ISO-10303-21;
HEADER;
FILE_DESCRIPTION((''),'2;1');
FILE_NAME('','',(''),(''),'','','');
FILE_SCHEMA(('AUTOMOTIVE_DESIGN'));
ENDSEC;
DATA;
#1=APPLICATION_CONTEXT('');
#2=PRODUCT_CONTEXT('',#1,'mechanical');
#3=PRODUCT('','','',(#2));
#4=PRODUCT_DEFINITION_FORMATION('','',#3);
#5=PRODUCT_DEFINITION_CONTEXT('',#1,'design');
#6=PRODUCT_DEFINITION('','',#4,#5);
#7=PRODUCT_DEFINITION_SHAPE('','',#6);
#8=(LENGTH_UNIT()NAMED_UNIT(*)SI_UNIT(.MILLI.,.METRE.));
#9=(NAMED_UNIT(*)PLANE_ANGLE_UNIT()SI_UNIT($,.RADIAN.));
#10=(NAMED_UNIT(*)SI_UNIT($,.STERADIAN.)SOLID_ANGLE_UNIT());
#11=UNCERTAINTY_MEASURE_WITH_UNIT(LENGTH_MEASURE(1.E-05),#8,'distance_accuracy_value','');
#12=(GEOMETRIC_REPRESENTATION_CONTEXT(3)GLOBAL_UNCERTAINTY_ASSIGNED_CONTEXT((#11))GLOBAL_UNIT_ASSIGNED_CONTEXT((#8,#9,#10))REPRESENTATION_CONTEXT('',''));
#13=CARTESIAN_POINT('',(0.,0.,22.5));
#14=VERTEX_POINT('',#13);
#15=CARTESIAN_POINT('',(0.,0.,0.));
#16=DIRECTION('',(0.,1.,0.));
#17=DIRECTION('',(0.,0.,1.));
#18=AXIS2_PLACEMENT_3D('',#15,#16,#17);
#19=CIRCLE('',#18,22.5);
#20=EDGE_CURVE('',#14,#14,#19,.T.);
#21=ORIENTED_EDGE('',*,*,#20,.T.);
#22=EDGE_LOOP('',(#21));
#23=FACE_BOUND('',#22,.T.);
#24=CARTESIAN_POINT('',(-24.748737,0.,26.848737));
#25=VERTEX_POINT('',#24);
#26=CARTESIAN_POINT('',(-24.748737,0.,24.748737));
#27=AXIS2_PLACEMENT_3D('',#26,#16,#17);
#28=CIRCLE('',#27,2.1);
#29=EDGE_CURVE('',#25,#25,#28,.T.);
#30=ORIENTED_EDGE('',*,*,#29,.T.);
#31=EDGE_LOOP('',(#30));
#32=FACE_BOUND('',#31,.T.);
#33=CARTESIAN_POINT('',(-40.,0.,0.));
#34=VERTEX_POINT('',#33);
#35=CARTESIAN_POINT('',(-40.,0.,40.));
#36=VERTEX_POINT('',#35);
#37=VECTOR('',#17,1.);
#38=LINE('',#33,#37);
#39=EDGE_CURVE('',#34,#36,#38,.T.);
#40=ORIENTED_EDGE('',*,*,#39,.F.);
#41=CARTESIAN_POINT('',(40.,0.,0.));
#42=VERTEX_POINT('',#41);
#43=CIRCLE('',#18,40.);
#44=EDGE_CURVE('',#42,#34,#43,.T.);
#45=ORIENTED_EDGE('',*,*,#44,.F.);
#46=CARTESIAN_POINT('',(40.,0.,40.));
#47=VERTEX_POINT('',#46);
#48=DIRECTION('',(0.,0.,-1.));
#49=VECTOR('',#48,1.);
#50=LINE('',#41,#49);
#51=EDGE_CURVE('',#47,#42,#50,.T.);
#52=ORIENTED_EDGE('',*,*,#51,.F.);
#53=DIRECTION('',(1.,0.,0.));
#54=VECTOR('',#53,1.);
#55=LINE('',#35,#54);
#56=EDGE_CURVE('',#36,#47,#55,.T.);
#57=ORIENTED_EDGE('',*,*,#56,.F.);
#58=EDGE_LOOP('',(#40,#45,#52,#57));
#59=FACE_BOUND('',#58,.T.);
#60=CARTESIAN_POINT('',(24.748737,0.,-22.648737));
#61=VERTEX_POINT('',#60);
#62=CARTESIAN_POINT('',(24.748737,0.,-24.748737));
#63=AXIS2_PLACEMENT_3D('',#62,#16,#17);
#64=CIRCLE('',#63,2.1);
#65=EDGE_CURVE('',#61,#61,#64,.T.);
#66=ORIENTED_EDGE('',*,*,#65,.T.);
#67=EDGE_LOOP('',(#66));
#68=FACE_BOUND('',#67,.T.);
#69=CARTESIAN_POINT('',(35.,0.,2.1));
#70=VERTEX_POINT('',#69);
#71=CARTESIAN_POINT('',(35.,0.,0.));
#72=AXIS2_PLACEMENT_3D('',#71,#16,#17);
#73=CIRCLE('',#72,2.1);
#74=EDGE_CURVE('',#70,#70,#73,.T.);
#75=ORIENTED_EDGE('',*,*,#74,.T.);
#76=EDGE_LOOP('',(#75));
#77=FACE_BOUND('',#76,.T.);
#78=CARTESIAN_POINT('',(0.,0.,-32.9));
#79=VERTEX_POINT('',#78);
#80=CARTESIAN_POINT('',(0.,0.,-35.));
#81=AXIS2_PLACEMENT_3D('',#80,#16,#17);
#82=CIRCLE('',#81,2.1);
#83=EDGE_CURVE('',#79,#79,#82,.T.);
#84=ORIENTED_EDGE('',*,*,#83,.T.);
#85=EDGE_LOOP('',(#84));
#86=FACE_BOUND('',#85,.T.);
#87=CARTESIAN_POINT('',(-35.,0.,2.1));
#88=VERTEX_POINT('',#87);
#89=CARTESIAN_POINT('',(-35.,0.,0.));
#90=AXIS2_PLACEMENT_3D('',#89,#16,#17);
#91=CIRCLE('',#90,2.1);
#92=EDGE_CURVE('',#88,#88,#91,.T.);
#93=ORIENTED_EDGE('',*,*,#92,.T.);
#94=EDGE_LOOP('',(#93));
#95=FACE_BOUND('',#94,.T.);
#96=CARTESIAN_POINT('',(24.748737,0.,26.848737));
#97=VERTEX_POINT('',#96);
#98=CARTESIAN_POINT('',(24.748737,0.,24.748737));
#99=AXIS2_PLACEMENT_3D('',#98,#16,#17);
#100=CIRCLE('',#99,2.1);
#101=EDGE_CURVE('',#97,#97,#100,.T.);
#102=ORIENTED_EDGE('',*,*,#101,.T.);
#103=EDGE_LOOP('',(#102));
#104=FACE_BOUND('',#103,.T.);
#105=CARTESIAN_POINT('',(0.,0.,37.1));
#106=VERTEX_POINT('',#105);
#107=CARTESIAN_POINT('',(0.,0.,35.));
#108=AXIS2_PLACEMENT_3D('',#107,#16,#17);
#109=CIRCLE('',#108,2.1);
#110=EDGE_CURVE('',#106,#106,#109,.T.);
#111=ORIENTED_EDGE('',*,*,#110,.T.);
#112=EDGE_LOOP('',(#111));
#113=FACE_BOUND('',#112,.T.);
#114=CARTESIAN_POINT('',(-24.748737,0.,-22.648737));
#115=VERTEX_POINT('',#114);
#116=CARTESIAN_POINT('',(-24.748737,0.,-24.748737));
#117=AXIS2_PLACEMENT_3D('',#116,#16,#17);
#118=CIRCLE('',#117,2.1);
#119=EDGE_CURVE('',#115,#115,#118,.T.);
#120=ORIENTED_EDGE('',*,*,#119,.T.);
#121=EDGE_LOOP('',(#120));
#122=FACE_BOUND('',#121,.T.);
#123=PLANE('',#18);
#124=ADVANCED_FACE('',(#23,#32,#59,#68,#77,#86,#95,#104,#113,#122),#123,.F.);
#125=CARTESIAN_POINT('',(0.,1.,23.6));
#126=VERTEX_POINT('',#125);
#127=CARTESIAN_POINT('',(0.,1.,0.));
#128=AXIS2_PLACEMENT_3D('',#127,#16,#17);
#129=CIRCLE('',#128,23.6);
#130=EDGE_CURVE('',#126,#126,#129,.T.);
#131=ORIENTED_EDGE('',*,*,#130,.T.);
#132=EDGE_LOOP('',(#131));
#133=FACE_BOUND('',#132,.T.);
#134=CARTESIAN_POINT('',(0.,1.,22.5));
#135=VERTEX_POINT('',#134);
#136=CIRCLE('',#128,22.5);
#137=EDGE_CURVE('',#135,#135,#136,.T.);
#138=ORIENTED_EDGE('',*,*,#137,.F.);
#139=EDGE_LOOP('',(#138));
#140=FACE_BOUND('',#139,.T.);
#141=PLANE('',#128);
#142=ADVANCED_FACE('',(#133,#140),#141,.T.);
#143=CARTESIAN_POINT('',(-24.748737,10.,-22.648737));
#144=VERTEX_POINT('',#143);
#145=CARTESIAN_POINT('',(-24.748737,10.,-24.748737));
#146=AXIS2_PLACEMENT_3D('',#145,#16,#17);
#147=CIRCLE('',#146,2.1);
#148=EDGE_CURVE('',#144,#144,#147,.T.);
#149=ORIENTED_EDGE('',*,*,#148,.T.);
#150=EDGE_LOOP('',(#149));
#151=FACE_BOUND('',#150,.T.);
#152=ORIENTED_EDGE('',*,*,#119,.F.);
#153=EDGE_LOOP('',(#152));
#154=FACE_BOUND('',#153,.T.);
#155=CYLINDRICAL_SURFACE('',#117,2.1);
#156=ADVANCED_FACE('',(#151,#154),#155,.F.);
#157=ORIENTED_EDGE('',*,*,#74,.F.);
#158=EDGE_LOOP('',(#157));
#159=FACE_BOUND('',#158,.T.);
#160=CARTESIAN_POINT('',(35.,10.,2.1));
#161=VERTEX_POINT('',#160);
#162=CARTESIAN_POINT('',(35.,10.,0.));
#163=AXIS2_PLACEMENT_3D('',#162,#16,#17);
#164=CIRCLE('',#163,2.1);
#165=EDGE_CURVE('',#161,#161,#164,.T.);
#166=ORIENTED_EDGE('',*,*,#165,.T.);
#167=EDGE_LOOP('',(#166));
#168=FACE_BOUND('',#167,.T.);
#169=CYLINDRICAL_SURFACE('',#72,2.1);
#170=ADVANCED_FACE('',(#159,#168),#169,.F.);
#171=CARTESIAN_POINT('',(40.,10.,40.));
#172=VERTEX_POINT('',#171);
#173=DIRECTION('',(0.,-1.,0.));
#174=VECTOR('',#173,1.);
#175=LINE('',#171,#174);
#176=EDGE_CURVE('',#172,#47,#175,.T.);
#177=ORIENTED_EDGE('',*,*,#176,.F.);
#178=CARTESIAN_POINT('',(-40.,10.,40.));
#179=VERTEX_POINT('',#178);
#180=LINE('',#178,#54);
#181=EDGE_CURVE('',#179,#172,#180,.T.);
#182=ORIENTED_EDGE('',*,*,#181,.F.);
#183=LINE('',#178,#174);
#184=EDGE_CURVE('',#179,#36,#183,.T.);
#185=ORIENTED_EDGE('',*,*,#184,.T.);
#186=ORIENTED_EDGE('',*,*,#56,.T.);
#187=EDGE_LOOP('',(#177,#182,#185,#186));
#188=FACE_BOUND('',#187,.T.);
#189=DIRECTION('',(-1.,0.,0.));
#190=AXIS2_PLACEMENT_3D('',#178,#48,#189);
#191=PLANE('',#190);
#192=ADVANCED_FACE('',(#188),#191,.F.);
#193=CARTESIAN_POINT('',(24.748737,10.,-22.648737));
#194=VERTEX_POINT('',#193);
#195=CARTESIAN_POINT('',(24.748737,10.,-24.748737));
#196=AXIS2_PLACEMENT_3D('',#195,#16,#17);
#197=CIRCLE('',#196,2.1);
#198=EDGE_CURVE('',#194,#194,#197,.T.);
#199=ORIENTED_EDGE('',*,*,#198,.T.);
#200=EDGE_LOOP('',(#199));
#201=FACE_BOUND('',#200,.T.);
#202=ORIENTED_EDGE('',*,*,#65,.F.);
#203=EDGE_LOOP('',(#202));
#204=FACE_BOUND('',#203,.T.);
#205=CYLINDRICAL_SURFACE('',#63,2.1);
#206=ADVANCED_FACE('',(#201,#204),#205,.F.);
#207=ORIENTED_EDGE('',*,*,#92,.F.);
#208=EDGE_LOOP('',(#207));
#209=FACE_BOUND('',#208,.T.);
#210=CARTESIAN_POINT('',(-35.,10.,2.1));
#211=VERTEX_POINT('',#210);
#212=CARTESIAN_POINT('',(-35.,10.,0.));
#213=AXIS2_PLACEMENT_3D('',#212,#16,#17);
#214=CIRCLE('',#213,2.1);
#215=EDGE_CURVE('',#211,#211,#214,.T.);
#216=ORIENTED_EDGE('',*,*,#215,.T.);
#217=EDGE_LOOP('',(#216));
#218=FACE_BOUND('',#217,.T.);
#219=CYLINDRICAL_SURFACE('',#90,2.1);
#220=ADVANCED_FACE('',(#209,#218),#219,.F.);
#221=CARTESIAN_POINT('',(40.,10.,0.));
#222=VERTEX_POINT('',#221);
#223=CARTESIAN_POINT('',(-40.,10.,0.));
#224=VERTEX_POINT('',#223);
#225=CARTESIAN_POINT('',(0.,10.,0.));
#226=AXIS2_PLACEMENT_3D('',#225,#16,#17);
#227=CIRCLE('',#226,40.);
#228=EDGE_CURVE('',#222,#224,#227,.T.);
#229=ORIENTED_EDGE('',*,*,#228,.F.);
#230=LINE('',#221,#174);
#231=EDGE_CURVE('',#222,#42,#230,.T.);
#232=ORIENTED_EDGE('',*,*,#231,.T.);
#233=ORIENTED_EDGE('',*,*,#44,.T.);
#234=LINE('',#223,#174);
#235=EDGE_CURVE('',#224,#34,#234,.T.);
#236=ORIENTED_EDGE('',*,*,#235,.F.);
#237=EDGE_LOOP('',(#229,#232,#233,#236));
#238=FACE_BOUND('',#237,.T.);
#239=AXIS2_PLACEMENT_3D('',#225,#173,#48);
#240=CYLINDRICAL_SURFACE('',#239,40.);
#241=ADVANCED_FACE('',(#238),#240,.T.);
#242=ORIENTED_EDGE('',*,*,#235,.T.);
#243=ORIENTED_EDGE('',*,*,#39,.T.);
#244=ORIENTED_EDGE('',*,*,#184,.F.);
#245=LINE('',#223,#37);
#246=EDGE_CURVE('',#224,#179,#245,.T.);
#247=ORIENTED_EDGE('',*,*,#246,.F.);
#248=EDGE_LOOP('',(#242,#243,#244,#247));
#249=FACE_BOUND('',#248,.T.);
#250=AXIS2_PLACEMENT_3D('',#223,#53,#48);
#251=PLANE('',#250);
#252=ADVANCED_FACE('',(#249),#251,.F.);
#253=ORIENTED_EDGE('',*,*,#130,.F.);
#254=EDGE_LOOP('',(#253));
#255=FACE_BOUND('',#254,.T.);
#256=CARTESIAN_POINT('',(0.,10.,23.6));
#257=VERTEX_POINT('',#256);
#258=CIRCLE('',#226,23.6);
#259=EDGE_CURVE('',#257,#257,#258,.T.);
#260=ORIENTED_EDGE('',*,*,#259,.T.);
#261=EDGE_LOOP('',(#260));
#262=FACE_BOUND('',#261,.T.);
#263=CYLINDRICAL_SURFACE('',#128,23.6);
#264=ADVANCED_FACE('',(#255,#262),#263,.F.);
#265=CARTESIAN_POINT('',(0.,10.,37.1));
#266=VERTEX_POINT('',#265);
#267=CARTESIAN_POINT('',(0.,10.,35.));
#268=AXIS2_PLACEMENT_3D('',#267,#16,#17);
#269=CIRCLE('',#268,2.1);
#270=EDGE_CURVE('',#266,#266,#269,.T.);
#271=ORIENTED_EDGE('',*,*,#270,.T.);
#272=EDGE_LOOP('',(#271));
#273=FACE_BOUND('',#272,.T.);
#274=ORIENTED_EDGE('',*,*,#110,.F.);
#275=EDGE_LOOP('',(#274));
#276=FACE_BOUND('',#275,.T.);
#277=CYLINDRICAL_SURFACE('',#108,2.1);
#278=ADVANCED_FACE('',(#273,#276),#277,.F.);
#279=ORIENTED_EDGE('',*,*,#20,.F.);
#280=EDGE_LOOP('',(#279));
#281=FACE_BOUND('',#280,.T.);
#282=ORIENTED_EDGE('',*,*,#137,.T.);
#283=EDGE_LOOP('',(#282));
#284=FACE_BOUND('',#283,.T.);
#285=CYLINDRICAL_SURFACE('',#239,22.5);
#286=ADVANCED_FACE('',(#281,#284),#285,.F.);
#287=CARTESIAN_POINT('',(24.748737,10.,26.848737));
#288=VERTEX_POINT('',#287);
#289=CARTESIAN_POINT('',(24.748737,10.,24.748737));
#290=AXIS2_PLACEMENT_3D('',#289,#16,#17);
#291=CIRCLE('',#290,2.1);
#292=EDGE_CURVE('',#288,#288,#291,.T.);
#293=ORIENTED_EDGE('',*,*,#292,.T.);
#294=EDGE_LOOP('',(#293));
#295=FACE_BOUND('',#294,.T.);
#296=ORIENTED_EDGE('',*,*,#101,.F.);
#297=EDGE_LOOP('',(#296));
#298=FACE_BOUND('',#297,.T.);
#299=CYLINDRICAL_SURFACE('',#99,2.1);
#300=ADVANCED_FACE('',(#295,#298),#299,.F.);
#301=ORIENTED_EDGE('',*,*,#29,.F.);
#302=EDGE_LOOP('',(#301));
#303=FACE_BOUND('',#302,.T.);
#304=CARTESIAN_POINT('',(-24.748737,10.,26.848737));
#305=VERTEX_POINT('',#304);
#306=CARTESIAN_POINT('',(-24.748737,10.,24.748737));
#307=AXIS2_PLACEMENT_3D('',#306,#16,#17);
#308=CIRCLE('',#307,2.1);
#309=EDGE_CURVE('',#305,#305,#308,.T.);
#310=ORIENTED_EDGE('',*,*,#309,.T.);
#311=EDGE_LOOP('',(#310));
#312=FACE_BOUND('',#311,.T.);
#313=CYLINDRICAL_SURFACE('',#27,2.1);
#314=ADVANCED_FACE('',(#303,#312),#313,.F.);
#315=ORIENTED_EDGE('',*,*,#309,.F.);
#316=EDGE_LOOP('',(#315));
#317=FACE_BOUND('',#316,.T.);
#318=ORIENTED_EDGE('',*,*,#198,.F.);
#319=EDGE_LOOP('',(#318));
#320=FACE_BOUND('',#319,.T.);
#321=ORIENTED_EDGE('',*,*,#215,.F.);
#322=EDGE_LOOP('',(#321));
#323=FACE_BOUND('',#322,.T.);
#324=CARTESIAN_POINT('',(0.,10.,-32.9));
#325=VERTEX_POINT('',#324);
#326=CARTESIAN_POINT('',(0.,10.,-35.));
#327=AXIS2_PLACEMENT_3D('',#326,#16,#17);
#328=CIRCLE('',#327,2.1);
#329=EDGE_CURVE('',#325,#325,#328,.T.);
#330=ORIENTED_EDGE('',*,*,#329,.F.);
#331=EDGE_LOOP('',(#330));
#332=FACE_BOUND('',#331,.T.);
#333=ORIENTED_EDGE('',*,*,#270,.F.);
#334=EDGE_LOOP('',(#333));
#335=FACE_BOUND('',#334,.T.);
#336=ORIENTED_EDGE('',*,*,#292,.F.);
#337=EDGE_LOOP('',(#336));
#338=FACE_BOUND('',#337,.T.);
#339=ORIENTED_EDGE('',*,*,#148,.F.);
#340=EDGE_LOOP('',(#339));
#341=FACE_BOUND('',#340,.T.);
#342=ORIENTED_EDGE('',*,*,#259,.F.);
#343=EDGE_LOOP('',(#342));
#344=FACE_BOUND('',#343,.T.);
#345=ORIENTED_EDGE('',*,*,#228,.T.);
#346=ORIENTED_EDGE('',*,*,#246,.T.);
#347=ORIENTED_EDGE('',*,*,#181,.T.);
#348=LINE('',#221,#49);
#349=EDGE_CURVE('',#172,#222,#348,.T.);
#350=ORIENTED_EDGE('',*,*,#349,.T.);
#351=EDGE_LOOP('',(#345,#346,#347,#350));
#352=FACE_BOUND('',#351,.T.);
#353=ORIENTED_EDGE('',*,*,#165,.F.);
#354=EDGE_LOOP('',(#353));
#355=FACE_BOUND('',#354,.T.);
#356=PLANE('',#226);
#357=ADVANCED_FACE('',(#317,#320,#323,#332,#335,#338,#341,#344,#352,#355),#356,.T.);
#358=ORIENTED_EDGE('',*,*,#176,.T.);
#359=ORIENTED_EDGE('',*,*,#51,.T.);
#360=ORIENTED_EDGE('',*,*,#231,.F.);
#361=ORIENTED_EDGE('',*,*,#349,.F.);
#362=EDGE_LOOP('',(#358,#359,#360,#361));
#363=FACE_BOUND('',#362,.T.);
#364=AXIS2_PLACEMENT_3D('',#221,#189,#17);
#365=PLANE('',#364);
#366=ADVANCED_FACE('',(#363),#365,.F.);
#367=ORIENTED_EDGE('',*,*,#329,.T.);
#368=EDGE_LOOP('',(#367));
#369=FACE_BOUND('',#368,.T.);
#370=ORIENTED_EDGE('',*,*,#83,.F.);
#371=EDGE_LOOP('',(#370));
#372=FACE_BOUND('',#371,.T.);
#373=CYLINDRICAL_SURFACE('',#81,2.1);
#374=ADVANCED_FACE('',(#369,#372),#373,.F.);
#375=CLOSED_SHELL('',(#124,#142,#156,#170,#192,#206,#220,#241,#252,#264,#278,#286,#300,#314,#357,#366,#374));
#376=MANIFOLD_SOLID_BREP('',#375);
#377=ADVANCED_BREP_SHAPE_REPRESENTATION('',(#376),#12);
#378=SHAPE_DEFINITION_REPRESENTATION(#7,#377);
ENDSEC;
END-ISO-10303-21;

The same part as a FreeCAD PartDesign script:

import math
import FreeCAD as App
import Part
import Sketcher

V = App.Vector

doc = App.newDocument("Part")
body = doc.addObject("PartDesign::Body", "Body")

# Sketch on XZ plane
sketch1 = body.newObject("Sketcher::SketchObject", "Sketch")
sketch1.AttachmentSupport = (doc.getObject("XZ_Plane"), [""])
sketch1.MapMode = "FlatFace"
sketch1.addGeometry(Part.LineSegment(V(-40, 0, 0), V(-40, 40, 0)), False)
sketch1.addGeometry(Part.LineSegment(V(-40, 40, 0), V(40, 40, 0)), False)
sketch1.addGeometry(Part.LineSegment(V(40, 40, 0), V(40, 0, 0)), False)
sketch1.addGeometry(Part.ArcOfCircle(Part.Circle(V(0, 0, 0), V(0, 0, 1), 40), math.radians(180), math.radians(360)), False)
sketch1.addGeometry(Part.Circle(V(0, 0, 0), V(0, 0, 1), 22), False)
sketch1.addConstraint(Sketcher.Constraint("Coincident", 0, 2, 1, 1))
sketch1.addConstraint(Sketcher.Constraint("Coincident", 1, 2, 2, 1))
sketch1.addConstraint(Sketcher.Constraint("Tangent", 2, 2, 3, 2))
sketch1.addConstraint(Sketcher.Constraint("Tangent", 3, 1, 0, 1))
sketch1.addConstraint(Sketcher.Constraint("Vertical", 0))
sketch1.addConstraint(Sketcher.Constraint("Horizontal", 1))
sketch1.addConstraint(Sketcher.Constraint("Vertical", 2))
sketch1.addConstraint(Sketcher.Constraint("Coincident", 3, 3, -1, 1))
sketch1.addConstraint(Sketcher.Constraint("Coincident", 4, 3, -1, 1))
sketch1.addConstraint(Sketcher.Constraint("Diameter", 4, 45.0))
sketch1.addConstraint(Sketcher.Constraint("Radius", 3, 40.0))
sketch1.addConstraint(Sketcher.Constraint("DistanceY", 0, 1, 0, 2, 40.0))
pad1 = body.newObject("PartDesign::Pad", "Pad")
pad1.Profile = sketch1
pad1.Length = 10
pad1.Reversed = True

# Sketch on XZ plane
sketch2 = body.newObject("Sketcher::SketchObject", "Sketch001")
sketch2.AttachmentSupport = (doc.getObject("XZ_Plane"), [""])
sketch2.MapMode = "FlatFace"
sketch2.AttachmentOffset = App.Placement(V(0, 0, -10), App.Rotation())
sketch2.addGeometry(Part.Circle(V(0, -35, 0), V(0, 0, 1), 2.1), False)
sketch2.addGeometry(Part.Circle(V(24.7, -24.7, 0), V(0, 0, 1), 2.1), False)
sketch2.addGeometry(Part.Circle(V(35, 0, 0), V(0, 0, 1), 2.1), False)
sketch2.addGeometry(Part.Circle(V(24.7, 24.7, 0), V(0, 0, 1), 2.1), False)
sketch2.addGeometry(Part.Circle(V(0, 35, 0), V(0, 0, 1), 2.1), False)
sketch2.addGeometry(Part.Circle(V(-24.7, 24.7, 0), V(0, 0, 1), 2.1), False)
sketch2.addGeometry(Part.Circle(V(-35, 0, 0), V(0, 0, 1), 2.1), False)
sketch2.addGeometry(Part.Circle(V(-24.7, -24.7, 0), V(0, 0, 1), 2.1), False)
sketch2.addConstraint(Sketcher.Constraint("Equal", 0, 1))
sketch2.addConstraint(Sketcher.Constraint("Equal", 1, 2))
sketch2.addConstraint(Sketcher.Constraint("Equal", 2, 3))
sketch2.addConstraint(Sketcher.Constraint("Equal", 3, 4))
sketch2.addConstraint(Sketcher.Constraint("Equal", 4, 5))
sketch2.addConstraint(Sketcher.Constraint("Equal", 5, 6))
sketch2.addConstraint(Sketcher.Constraint("Equal", 6, 7))
sketch2.addConstraint(Sketcher.Constraint("Symmetric", 0, 3, 4, 3, -1, 1))
sketch2.addConstraint(Sketcher.Constraint("Symmetric", 1, 3, 5, 3, -1, 1))
sketch2.addConstraint(Sketcher.Constraint("Symmetric", 2, 3, 6, 3, -1, 1))
sketch2.addConstraint(Sketcher.Constraint("Symmetric", 3, 3, 7, 3, -1, 1))
sketch2.addConstraint(Sketcher.Constraint("Symmetric", 3, 3, 5, 3, -2))
sketch2.addConstraint(Sketcher.Constraint("PointOnObject", 0, 3, -2))
sketch2.addConstraint(Sketcher.Constraint("PointOnObject", 2, 3, -1))
sketch2.addConstraint(Sketcher.Constraint("Diameter", 0, 4.2))
sketch2.addConstraint(Sketcher.Constraint("DistanceY", 0, 3, -1, 1, 35.0))
sketch2.addConstraint(Sketcher.Constraint("DistanceX", -1, 1, 2, 3, 35.0))
sketch2.addConstraint(Sketcher.Constraint("DistanceX", -1, 1, 1, 3, 24.748737))
sketch2.addConstraint(Sketcher.Constraint("DistanceY", 1, 3, -1, 1, 24.748737))
pocket1 = body.newObject("PartDesign::Pocket", "Pocket")
pocket1.Profile = sketch2
pocket1.Type = "ThroughAll"
pocket1.Reversed = True

# Sketch on XZ plane
sketch3 = body.newObject("Sketcher::SketchObject", "Sketch002")
sketch3.AttachmentSupport = (doc.getObject("XZ_Plane"), [""])
sketch3.MapMode = "FlatFace"
sketch3.AttachmentOffset = App.Placement(V(0, 0, -10), App.Rotation())
sketch3.addGeometry(Part.Circle(V(0, 0, 0), V(0, 0, 1), 24), False)
sketch3.addConstraint(Sketcher.Constraint("Coincident", 0, 3, -1, 1))
sketch3.addConstraint(Sketcher.Constraint("Diameter", 0, 47.2))
pocket2 = body.newObject("PartDesign::Pocket", "Pocket001")
pocket2.Profile = sketch3
pocket2.Length = 9
pocket2.Reversed = True

doc.recompute()
